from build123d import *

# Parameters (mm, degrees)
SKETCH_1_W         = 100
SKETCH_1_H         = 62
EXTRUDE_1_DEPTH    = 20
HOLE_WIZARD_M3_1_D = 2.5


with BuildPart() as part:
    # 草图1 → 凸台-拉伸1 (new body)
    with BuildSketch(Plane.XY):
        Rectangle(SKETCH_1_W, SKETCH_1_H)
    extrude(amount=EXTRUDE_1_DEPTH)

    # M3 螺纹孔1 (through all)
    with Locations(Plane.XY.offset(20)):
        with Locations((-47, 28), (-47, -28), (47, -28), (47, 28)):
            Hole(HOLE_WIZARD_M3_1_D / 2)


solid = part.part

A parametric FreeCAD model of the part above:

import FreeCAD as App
import Part
import Sketcher
from FreeCAD import Vector
Q = App.Units.Quantity


def add_polygon(sketch, points):
    """Adds a closed chain of lines whose ends are joined by coincident constraints."""
    first, n = sketch.GeometryCount, len(points)
    for a, b in zip(points, points[1:] + points[:1]):
        sketch.addGeometry(Part.LineSegment(App.Vector(*a, 0), App.Vector(*b, 0)), False)
    for i in range(n):
        sketch.addConstraint(Sketcher.Constraint("Coincident", first + i, 2, first + (i + 1) % n, 1))

doc = App.newDocument("Part")
body = doc.addObject("PartDesign::Body", "Body")

sketch1 = body.newObject("Sketcher::SketchObject", "Sketch")
sketch1.AttachmentSupport = (doc.getObject("XY_Plane"), [""])
sketch1.MapMode = "FlatFace"
add_polygon(sketch1, [(-50, 31), (-50, -31), (50, -31), (50, 31)])
sketch1.addConstraint([
    Sketcher.Constraint("Vertical", 0),
    Sketcher.Constraint("Horizontal", 1),
    Sketcher.Constraint("Vertical", 2),
    Sketcher.Constraint("Horizontal", 3),
    Sketcher.Constraint("Symmetric", 0, 2, 2, 2, -1, 1),
    Sketcher.Constraint("DistanceX", 1, 1, 1, 2, Q("100 mm")),
    Sketcher.Constraint("DistanceY", 0, 2, 0, 1, Q("62 mm")),
])
pad1 = body.newObject("PartDesign::Pad", "Pad")
pad1.Profile = sketch1
pad1.Length = 20

sketch2 = body.newObject("Sketcher::SketchObject", "Sketch001")
sketch2.AttachmentSupport = (doc.getObject("XY_Plane"), [""])
sketch2.MapMode = "FlatFace"
sketch2.AttachmentOffset = App.Placement(Vector(0, 0, 20), App.Rotation())
sketch2.addGeometry([
    Part.Circle(Vector(-47, 28, 0), Vector(0, 0, 1), 1.2),
    Part.Circle(Vector(-47, -28, 0), Vector(0, 0, 1), 1.2),
    Part.Circle(Vector(47, -28, 0), Vector(0, 0, 1), 1.2),
    Part.Circle(Vector(47, 28, 0), Vector(0, 0, 1), 1.2),
], False)
sketch2.addConstraint([
    Sketcher.Constraint("Equal", 0, 1),
    Sketcher.Constraint("Equal", 1, 2),
    Sketcher.Constraint("Equal", 2, 3),
    Sketcher.Constraint("Symmetric", 0, 3, 2, 3, -1, 1),
    Sketcher.Constraint("Symmetric", 1, 3, 3, 3, -1, 1),
    Sketcher.Constraint("Symmetric", 1, 3, 2, 3, -2),
    Sketcher.Constraint("Diameter", 0, Q("2.5 mm")),
    Sketcher.Constraint("DistanceX", 0, 3, -1, 1, Q("47 mm")),
    Sketcher.Constraint("DistanceY", -1, 1, 0, 3, Q("28 mm")),
])
doc.recompute()
hole = body.newObject("PartDesign::Hole", "Hole")
hole.Profile = sketch2
hole.ThreadType = "None"
hole.Diameter = 2.5
hole.DepthType = "ThroughAll"

doc.recompute()
